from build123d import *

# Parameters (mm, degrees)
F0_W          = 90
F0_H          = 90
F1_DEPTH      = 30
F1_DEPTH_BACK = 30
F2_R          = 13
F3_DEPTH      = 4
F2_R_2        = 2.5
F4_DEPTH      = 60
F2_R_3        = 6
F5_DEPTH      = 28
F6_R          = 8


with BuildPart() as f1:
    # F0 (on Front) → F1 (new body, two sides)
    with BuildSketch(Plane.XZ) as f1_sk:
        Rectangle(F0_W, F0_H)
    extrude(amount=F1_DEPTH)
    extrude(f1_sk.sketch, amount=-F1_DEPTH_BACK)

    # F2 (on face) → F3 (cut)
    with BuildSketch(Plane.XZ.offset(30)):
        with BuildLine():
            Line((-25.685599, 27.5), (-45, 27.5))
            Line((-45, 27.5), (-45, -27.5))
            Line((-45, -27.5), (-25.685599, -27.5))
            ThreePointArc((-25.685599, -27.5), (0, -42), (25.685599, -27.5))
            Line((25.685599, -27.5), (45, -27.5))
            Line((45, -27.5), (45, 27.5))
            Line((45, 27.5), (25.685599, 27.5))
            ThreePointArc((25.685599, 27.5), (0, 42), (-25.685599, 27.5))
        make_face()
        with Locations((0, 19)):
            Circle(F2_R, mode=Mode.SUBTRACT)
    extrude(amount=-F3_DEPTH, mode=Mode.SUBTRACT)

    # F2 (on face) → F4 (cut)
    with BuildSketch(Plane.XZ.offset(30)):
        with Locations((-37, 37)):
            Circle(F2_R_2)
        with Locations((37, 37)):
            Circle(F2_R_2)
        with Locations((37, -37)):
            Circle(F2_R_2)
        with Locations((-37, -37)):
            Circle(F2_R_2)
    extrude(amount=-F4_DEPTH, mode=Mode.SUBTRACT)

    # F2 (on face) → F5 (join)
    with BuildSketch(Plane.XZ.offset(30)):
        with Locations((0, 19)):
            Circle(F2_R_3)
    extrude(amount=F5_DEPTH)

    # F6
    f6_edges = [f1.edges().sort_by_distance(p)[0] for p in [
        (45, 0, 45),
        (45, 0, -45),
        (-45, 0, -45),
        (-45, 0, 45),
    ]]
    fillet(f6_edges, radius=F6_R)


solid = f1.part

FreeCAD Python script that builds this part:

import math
import FreeCAD as App
import Part
import Sketcher


def edges_at(feature, points):
    """Names of the edges that pass closest to the given points."""
    edges = feature.Shape.Edges
    near = lambda p: min(range(len(edges)), key=lambda i: edges[i].distToShape(Part.Vertex(*p))[0])
    return sorted({f"Edge{near(p) + 1}" for p in points})


def add_polygon(sketch, points):
    """Adds a closed chain of lines whose ends are joined by coincident constraints."""
    first, n = sketch.GeometryCount, len(points)
    for a, b in zip(points, points[1:] + points[:1]):
        sketch.addGeometry(Part.LineSegment(App.Vector(*a, 0), App.Vector(*b, 0)), False)
    for i in range(n):
        sketch.addConstraint(Sketcher.Constraint("Coincident", first + i, 2, first + (i + 1) % n, 1))

doc = App.newDocument("Part")
params = doc.addObject("Spreadsheet::Sheet", "Params")
for row, (alias, value) in enumerate([
    ("sketch1_width", "90 mm"),
    ("pad1_length", "30 mm"),
    ("pad1_length2", "30 mm"),
    ("sketch2_diameter", "26 mm"),
    ("sketch2_radius", "30 mm"),
    ("sketch2_height", "55 mm"),
    ("pocket1_length", "4 mm"),
    ("sketch3_diameter", "5 mm"),
    ("pocket2_length", "60 mm"),
    ("sketch4_diameter", "12 mm"),
    ("pad2_length", "28 mm"),
    ("fillet_radius", "8 mm"),
], start=1):
    params.set(f"A{row}", alias)
    params.set(f"B{row}", "=" + value)
    params.setAlias(f"B{row}", alias)

body = doc.addObject("PartDesign::Body", "Body")

sketch1 = doc.addObject("Sketcher::SketchObject", "Sketch")
body.addObject(sketch1)
sketch1.AttachmentSupport = (doc.XZ_Plane, [""])
sketch1.MapMode = "FlatFace"
add_polygon(sketch1, [(-45, 45), (-45, -45), (45, -45), (45, 45)])
sketch1.addConstraint([
    Sketcher.Constraint("Vertical", 0),
    Sketcher.Constraint("Horizontal", 1),
    Sketcher.Constraint("Vertical", 2),
    Sketcher.Constraint("Horizontal", 3),
    Sketcher.Constraint("Symmetric", 0, 2, 2, 2, -1, 1),
    Sketcher.Constraint("Equal", 3, 0),
    Sketcher.Constraint("DistanceX", 1, 1, 1, 2, 90.0),
])
sketch1.setExpression("Constraints[10]", "Params.sketch1_width")
pad1 = doc.addObject("PartDesign::Pad", "Pad")
body.addObject(pad1)
pad1.Profile = sketch1
pad1.Type = "TwoLengths"
pad1.setExpression("Length", "Params.pad1_length")
pad1.setExpression("Length2", "Params.pad1_length2")

sketch2 = doc.addObject("Sketcher::SketchObject", "Sketch001")
body.addObject(sketch2)
sketch2.AttachmentSupport = (doc.XZ_Plane, [""])
sketch2.MapMode = "FlatFace"
sketch2.AttachmentOffset = App.Placement(App.Vector(0, 0, 30), App.Rotation())
sketch2.addGeometry([
    Part.LineSegment(App.Vector(-26, 28, 0), App.Vector(-45, 28, 0)),
    Part.LineSegment(App.Vector(-45, 28, 0), App.Vector(-45, -28, 0)),
    Part.LineSegment(App.Vector(-45, -28, 0), App.Vector(-26, -28, 0)),
    Part.ArcOfCircle(Part.Circle(App.Vector(0, -12, 0), App.Vector(0, 0, 1), 30), math.radians(-149), math.radians(-31)),
    Part.LineSegment(App.Vector(26, -28, 0), App.Vector(45, -28, 0)),
    Part.LineSegment(App.Vector(45, -28, 0), App.Vector(45, 28, 0)),
    Part.LineSegment(App.Vector(45, 28, 0), App.Vector(26, 28, 0)),
    Part.ArcOfCircle(Part.Circle(App.Vector(0, 12, 0), App.Vector(0, 0, 1), 30), math.radians(31), math.radians(149)),
    Part.Circle(App.Vector(0, 19, 0), App.Vector(0, 0, 1), 13),
], False)
sketch2.addConstraint([
    Sketcher.Constraint("Coincident", 0, 2, 1, 1),
    Sketcher.Constraint("Coincident", 1, 2, 2, 1),
    Sketcher.Constraint("Coincident", 2, 2, 3, 1),
    Sketcher.Constraint("Coincident", 3, 2, 4, 1),
    Sketcher.Constraint("Coincident", 4, 2, 5, 1),
    Sketcher.Constraint("Coincident", 5, 2, 6, 1),
    Sketcher.Constraint("Coincident", 6, 2, 7, 1),
    Sketcher.Constraint("Coincident", 7, 2, 0, 1),
    Sketcher.Constraint("Horizontal", 0),
    Sketcher.Constraint("Vertical", 1),
    Sketcher.Constraint("Horizontal", 2),
    Sketcher.Constraint("Horizontal", 4),
    Sketcher.Constraint("Vertical", 5),
    Sketcher.Constraint("Horizontal", 6),
    Sketcher.Constraint("Equal", 3, 7),
    Sketcher.Constraint("Symmetric", 3, 3, 7, 3, -1, 1),
    Sketcher.Constraint("Symmetric", 0, 2, 4, 2, -1, 1),
    Sketcher.Constraint("Symmetric", 2, 2, 3, 2, -2),
    Sketcher.Constraint("PointOnObject", 8, 3, -2),
    Sketcher.Constraint("Horizontal", 0, 2, 5, 2),
    Sketcher.Constraint("Diameter", 8, 26.0),
    Sketcher.Constraint("Radius", 3, 30.0),
    Sketcher.Constraint("DistanceY", 1, 2, 1, 1, 55.0),
    Sketcher.Constraint("DistanceY", 3, 3, -1, 1, 12.0),
    Sketcher.Constraint("DistanceY", -1, 1, 8, 3, 19.0),
    Sketcher.Constraint("DistanceX", 0, 2, -1, 1, 45.0),
])
sketch2.setExpression("Constraints[20]", "Params.sketch2_diameter")
sketch2.setExpression("Constraints[21]", "Params.sketch2_radius")
sketch2.setExpression("Constraints[22]", "Params.sketch2_height")
pocket1 = doc.addObject("PartDesign::Pocket", "Pocket")
body.addObject(pocket1)
pocket1.Profile = sketch2
pocket1.setExpression("Length", "Params.pocket1_length")

sketch3 = doc.addObject("Sketcher::SketchObject", "Sketch002")
body.addObject(sketch3)
sketch3.AttachmentSupport = (doc.XZ_Plane, [""])
sketch3.MapMode = "FlatFace"
sketch3.AttachmentOffset = App.Placement(App.Vector(0, 0, 30), App.Rotation())
sketch3.addGeometry([
    Part.Circle(App.Vector(-37, 37, 0), App.Vector(0, 0, 1), 2.5),
    Part.Circle(App.Vector(37, 37, 0), App.Vector(0, 0, 1), 2.5),
    Part.Circle(App.Vector(37, -37, 0), App.Vector(0, 0, 1), 2.5),
    Part.Circle(App.Vector(-37, -37, 0), App.Vector(0, 0, 1), 2.5),
], False)
sketch3.addConstraint([
    Sketcher.Constraint("Equal", 0, 1),
    Sketcher.Constraint("Equal", 1, 2),
    Sketcher.Constraint("Equal", 2, 3),
    Sketcher.Constraint("Symmetric", 0, 3, 2, 3, -1, 1),
    Sketcher.Constraint("Symmetric", 1, 3, 3, 3, -1, 1),
    Sketcher.Constraint("Symmetric", 0, 3, 1, 3, -2),
    Sketcher.Constraint("Diameter", 0, 5.0),
    Sketcher.Constraint("DistanceX", 0, 3, -1, 1, 37.0),
    Sketcher.Constraint("DistanceY", -1, 1, 0, 3, 37.0),
])
sketch3.setExpression("Constraints[6]", "Params.sketch3_diameter")
pocket2 = doc.addObject("PartDesign::Pocket", "Pocket001")
body.addObject(pocket2)
pocket2.Profile = sketch3
pocket2.setExpression("Length", "Params.pocket2_length")

sketch4 = doc.addObject("Sketcher::SketchObject", "Sketch003")
body.addObject(sketch4)
sketch4.AttachmentSupport = (doc.XZ_Plane, [""])
sketch4.MapMode = "FlatFace"
sketch4.AttachmentOffset = App.Placement(App.Vector(0, 0, 30), App.Rotation())
sketch4.addGeometry(Part.Circle(App.Vector(0, 19, 0), App.Vector(0, 0, 1), 6), False)
sketch4.addConstraint([
    Sketcher.Constraint("PointOnObject", 0, 3, -2),
    Sketcher.Constraint("Diameter", 0, 12.0),
    Sketcher.Constraint("DistanceY", -1, 1, 0, 3, 19.0),
])
sketch4.setExpression("Constraints[1]", "Params.sketch4_diameter")
pad2 = doc.addObject("PartDesign::Pad", "Pad001")
body.addObject(pad2)
pad2.Profile = sketch4
pad2.setExpression("Length", "Params.pad2_length")
doc.recompute()

fillet = doc.addObject("PartDesign::Fillet", "Fillet")
body.addObject(fillet)
fillet.Base = (pad2, edges_at(pad2, [
    (45, 0, 45),
    (45, 0, -45),
    (-45, 0, -45),
    (-45, 0, 45),
]))
fillet.setExpression("Radius", "Params.fillet_radius")

doc.recompute()
